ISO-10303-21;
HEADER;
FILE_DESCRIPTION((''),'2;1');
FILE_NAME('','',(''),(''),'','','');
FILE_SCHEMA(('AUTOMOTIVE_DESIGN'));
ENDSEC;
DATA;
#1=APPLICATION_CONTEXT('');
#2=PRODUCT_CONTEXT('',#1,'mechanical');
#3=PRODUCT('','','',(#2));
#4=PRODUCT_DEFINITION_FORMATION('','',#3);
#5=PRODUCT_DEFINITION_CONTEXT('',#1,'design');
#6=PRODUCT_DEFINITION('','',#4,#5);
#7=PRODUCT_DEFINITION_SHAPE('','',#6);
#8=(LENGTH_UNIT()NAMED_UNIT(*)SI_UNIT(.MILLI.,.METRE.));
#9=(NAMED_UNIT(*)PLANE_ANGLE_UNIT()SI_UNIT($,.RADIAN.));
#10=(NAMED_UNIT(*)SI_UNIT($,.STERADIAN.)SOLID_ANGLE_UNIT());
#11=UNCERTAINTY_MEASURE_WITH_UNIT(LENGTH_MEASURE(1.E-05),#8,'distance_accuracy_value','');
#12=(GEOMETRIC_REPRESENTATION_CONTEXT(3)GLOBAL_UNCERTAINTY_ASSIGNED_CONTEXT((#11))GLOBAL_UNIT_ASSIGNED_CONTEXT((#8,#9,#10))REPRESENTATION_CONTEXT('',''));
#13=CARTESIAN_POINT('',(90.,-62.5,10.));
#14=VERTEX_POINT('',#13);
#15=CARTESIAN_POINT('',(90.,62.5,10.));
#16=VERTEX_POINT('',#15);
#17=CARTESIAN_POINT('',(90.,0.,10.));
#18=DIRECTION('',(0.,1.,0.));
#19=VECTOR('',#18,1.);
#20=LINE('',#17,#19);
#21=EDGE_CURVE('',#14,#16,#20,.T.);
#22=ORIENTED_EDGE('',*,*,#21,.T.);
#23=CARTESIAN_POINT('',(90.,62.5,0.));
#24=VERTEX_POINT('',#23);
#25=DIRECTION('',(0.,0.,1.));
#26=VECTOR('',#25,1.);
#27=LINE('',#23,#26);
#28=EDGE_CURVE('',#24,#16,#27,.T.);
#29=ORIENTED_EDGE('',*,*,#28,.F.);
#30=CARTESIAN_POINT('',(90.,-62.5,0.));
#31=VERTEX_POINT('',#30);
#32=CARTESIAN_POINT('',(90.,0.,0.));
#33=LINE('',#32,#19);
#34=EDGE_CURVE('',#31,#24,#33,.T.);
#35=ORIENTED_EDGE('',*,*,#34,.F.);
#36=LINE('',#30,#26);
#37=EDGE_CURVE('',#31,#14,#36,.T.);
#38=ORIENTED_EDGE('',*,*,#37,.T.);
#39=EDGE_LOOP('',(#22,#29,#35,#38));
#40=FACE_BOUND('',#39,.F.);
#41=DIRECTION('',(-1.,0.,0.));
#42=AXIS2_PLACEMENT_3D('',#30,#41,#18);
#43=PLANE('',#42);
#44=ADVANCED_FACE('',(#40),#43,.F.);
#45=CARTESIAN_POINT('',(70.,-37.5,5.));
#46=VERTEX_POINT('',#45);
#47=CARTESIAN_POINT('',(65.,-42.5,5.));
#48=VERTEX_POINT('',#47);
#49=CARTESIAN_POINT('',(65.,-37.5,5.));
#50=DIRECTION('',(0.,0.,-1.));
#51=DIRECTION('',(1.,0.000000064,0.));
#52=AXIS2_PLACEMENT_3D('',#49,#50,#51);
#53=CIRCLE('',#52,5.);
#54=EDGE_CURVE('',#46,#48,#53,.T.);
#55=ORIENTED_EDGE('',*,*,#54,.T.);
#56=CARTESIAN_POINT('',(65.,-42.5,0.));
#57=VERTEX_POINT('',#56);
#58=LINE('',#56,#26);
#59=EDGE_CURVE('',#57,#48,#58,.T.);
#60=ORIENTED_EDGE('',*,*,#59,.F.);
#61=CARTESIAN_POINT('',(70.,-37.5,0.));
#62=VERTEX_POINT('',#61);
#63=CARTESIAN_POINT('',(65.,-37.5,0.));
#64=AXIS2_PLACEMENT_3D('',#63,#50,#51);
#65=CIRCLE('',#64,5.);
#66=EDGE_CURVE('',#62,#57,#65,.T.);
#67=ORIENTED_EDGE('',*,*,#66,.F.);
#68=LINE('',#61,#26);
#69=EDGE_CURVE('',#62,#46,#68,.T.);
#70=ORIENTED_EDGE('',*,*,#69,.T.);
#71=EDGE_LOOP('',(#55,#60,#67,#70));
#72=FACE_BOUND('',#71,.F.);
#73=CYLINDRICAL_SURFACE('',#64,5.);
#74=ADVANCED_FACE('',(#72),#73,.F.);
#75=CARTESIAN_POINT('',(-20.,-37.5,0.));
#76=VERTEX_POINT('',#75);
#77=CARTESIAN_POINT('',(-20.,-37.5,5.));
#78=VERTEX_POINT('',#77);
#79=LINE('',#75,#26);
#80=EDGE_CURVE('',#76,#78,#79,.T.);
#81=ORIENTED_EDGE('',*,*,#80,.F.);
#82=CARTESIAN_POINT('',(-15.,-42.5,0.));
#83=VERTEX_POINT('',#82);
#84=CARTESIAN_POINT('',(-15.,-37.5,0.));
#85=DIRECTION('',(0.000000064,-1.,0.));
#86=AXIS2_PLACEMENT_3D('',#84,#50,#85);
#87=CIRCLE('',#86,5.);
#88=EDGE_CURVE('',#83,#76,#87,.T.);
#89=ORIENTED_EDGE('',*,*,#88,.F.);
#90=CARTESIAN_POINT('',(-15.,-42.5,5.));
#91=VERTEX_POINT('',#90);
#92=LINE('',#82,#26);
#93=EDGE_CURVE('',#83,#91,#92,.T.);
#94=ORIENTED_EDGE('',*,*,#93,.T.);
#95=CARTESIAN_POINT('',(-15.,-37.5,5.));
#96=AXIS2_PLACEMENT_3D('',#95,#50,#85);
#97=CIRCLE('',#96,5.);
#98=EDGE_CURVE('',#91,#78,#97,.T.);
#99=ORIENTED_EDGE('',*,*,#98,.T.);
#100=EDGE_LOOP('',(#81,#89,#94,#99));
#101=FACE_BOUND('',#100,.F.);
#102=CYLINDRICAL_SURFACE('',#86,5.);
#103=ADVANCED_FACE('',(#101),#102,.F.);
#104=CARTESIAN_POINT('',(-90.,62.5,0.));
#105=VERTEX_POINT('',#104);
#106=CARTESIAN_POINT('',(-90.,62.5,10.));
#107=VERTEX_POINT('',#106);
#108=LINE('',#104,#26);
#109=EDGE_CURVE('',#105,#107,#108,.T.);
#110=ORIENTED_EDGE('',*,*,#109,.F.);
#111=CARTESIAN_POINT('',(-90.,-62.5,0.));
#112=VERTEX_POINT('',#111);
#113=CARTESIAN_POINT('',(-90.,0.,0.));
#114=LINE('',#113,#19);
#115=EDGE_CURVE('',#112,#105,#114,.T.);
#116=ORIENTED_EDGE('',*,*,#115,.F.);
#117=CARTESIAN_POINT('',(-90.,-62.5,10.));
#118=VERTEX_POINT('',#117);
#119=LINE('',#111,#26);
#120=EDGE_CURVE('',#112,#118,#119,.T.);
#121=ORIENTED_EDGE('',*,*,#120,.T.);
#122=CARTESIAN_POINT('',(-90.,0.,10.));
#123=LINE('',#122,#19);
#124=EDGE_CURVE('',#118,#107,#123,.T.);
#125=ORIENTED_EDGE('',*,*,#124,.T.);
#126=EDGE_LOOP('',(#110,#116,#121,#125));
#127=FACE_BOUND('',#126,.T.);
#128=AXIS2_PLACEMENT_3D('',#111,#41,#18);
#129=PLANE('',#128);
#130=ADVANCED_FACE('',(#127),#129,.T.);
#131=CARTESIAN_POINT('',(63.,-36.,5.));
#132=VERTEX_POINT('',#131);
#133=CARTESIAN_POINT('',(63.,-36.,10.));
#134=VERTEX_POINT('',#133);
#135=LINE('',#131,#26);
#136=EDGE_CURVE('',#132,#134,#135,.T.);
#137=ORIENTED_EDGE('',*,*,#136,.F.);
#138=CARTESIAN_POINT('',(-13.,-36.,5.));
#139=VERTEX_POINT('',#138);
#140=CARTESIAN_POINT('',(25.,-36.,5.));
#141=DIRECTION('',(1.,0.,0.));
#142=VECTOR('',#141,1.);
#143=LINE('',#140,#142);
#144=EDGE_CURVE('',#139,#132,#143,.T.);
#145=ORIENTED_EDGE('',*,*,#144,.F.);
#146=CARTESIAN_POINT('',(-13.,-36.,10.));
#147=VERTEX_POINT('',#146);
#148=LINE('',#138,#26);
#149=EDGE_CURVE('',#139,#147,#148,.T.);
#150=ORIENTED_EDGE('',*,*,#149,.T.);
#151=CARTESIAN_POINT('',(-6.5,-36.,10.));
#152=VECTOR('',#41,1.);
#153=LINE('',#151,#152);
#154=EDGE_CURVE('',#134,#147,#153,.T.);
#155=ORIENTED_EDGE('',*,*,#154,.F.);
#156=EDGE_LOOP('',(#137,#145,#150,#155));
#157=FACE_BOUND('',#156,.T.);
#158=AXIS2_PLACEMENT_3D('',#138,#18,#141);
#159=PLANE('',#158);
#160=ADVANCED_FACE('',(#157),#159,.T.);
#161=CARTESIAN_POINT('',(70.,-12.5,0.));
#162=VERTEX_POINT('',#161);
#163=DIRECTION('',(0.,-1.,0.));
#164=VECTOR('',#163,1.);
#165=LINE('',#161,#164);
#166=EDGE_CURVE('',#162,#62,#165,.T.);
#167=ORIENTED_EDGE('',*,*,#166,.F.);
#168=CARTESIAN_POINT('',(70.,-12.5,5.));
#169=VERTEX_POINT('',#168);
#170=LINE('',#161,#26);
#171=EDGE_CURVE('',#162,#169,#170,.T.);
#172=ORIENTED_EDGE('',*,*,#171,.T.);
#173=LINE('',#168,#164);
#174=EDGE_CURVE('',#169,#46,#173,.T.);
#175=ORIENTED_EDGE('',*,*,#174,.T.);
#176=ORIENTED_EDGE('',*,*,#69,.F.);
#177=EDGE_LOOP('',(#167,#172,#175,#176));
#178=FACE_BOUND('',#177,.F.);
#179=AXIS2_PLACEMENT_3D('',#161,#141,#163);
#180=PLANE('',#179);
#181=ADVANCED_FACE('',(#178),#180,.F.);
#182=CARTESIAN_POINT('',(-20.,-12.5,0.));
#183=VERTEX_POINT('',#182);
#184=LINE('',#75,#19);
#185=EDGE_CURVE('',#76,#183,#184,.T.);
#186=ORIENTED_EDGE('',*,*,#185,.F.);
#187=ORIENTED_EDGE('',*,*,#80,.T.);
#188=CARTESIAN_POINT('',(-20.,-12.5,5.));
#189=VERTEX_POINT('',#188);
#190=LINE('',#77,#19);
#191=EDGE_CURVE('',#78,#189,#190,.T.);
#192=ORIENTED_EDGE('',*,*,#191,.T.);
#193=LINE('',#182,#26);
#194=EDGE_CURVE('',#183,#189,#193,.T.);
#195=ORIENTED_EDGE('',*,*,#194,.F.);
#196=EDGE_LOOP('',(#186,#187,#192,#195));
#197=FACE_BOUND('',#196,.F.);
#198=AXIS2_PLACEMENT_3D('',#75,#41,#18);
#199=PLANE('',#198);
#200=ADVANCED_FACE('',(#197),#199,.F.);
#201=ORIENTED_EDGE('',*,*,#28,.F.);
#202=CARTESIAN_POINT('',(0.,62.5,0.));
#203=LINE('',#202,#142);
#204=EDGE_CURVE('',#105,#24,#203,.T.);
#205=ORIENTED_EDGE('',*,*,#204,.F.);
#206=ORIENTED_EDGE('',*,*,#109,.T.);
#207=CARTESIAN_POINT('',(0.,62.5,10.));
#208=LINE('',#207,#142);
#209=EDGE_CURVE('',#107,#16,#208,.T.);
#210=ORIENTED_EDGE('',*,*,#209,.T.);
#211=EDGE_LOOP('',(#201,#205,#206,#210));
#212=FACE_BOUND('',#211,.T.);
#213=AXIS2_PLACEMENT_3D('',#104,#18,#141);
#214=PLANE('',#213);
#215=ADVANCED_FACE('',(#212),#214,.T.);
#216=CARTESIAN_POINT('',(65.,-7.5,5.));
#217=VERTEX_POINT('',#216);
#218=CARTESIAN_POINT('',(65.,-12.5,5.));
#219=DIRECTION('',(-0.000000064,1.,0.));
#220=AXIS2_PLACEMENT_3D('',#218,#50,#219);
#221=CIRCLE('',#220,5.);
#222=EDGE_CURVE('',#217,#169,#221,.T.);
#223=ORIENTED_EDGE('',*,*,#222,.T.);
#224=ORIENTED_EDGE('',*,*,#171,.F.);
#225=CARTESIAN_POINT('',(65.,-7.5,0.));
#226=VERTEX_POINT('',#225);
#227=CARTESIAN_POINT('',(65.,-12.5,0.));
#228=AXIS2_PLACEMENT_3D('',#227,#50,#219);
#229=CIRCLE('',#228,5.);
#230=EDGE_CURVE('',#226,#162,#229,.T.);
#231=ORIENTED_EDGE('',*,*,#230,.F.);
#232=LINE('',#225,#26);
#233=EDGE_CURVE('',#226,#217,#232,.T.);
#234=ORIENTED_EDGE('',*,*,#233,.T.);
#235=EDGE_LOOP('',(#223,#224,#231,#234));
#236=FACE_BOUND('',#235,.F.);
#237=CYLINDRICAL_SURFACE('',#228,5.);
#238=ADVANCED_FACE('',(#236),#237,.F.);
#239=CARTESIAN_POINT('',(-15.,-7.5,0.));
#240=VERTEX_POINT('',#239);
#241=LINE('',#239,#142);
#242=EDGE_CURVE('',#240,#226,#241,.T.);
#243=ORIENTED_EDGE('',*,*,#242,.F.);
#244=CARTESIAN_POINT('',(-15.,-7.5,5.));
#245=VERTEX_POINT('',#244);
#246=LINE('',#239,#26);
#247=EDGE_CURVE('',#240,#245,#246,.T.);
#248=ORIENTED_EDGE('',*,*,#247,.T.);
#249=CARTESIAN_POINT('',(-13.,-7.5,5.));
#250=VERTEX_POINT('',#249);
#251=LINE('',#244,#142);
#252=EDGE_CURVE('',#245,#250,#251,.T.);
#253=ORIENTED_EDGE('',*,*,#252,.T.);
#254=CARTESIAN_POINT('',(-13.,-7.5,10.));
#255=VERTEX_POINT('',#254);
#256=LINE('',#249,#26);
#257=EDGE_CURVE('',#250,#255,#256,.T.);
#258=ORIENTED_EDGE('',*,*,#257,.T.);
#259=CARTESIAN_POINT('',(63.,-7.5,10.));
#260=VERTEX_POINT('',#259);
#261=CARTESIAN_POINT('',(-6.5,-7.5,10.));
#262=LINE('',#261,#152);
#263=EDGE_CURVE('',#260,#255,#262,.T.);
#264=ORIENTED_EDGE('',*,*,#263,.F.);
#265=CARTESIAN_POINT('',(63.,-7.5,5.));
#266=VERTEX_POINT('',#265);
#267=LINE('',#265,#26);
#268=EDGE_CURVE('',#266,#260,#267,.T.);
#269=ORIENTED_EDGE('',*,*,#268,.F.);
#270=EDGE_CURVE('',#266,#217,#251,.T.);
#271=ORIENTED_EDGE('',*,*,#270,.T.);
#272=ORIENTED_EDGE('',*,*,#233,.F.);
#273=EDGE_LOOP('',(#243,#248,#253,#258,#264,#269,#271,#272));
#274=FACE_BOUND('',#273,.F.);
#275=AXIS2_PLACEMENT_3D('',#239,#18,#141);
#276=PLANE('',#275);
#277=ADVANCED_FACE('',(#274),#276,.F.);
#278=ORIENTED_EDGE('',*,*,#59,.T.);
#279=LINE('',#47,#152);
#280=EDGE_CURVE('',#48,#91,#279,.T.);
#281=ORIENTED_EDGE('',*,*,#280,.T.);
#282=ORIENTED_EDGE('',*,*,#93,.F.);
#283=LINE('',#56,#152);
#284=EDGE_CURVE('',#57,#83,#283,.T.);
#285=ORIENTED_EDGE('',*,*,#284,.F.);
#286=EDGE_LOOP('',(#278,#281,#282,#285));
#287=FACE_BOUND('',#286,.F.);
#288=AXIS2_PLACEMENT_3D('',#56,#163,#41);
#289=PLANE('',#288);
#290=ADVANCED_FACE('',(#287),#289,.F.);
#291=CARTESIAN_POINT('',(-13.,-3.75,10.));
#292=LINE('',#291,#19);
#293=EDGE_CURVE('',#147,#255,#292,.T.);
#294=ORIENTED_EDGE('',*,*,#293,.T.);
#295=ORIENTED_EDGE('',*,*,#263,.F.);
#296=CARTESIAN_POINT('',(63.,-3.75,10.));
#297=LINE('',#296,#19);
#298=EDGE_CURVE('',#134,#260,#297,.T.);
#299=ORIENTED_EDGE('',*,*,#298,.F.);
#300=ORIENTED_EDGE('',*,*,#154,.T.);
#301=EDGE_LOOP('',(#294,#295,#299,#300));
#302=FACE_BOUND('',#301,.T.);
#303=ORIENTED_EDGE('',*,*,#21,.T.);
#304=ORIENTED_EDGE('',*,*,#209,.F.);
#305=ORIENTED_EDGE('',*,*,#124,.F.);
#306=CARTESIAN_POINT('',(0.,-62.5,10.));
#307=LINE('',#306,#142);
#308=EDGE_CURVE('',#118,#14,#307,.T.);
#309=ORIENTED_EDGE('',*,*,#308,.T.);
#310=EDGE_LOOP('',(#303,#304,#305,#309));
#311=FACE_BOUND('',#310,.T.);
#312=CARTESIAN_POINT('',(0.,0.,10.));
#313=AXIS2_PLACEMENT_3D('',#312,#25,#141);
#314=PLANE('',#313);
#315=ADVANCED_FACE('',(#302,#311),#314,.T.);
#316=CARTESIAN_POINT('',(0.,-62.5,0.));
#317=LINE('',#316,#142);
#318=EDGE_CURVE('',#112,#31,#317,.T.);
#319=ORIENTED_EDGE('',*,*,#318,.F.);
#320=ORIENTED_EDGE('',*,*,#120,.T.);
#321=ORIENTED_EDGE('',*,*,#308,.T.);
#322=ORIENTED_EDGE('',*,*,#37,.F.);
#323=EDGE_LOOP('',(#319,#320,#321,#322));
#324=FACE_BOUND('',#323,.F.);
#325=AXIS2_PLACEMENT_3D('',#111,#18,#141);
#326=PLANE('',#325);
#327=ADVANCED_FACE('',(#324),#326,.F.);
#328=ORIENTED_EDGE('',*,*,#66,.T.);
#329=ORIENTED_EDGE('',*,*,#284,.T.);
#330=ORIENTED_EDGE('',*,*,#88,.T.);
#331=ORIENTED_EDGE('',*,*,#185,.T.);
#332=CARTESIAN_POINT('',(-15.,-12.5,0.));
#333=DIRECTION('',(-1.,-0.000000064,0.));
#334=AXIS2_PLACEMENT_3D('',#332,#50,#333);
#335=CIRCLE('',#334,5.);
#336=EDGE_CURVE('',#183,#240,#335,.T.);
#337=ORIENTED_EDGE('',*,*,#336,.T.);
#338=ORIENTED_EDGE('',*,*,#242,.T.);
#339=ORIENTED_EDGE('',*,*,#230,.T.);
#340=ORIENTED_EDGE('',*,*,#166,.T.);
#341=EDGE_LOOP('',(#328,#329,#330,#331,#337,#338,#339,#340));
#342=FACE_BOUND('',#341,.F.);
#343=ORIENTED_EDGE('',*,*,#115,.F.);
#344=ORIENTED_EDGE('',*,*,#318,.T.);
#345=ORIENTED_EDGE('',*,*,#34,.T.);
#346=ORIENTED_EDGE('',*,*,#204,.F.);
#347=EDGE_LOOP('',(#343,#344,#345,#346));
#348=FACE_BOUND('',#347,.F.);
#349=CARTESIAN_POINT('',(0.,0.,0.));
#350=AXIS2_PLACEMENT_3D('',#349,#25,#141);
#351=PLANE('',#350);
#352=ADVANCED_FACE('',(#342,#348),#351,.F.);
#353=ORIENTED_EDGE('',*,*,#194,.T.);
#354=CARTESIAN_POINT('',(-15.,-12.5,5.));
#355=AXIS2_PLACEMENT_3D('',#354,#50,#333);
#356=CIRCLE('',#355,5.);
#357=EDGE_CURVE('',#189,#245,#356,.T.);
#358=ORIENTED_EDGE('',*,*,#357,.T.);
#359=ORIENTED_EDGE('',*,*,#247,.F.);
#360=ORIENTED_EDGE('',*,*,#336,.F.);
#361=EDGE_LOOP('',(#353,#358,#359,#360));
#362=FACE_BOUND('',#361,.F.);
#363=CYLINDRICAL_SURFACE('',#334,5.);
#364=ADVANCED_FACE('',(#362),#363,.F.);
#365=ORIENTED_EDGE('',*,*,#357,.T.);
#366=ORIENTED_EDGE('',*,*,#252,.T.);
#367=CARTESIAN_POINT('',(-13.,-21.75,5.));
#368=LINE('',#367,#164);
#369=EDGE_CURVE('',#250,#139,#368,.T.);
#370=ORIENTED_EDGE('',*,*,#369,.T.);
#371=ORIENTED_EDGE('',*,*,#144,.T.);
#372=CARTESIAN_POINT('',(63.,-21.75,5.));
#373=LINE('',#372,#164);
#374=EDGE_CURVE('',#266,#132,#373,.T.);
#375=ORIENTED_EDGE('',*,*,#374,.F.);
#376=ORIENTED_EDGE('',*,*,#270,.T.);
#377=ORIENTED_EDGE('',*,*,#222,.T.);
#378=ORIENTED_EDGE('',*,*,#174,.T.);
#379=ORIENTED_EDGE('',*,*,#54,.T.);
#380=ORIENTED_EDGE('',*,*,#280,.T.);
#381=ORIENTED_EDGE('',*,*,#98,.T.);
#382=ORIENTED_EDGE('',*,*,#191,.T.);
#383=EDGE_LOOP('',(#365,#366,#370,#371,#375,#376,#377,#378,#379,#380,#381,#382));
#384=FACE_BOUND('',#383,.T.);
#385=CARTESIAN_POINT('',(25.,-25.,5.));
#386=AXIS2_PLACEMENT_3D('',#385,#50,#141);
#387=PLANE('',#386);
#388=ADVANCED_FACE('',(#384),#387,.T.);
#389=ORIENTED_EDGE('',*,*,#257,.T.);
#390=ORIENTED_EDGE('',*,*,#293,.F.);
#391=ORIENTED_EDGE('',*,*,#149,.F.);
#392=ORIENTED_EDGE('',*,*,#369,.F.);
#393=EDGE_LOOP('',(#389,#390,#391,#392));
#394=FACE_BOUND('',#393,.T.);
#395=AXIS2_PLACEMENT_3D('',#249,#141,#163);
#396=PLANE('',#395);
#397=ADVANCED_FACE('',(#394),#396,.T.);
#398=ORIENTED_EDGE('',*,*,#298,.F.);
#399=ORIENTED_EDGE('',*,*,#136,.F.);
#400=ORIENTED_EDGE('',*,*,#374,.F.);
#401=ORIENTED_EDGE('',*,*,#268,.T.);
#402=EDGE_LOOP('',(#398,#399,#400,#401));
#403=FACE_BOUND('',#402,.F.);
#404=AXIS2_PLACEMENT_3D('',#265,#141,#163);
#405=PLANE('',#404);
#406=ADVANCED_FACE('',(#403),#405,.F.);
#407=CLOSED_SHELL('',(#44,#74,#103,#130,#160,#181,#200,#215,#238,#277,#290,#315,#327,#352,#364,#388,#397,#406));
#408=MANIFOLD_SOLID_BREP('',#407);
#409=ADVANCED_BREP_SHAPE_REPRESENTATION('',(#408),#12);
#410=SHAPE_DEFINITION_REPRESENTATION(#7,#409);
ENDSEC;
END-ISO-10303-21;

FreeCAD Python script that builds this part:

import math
import FreeCAD as App
import Part
import Sketcher

V = App.Vector
Q = App.Units.Quantity

doc = App.newDocument("Part")
body = doc.addObject("PartDesign::Body", "Body")

# Sketch on XY plane
sketch1 = body.newObject("Sketcher::SketchObject", "Sketch")
sketch1.AttachmentSupport = (doc.getObject("XY_Plane"), [""])
sketch1.MapMode = "FlatFace"
sketch1.addGeometry([
    Part.LineSegment(V(-90, 62.5, 0), V(-90, -62.5, 0)),
    Part.LineSegment(V(-90, -62.5, 0), V(90, -62.5, 0)),
    Part.LineSegment(V(90, -62.5, 0), V(90, 62.5, 0)),
    Part.LineSegment(V(90, 62.5, 0), V(-90, 62.5, 0)),
], False)
sketch1.addConstraint([
    Sketcher.Constraint("Coincident", 0, 2, 1, 1),
    Sketcher.Constraint("Coincident", 1, 2, 2, 1),
    Sketcher.Constraint("Coincident", 2, 2, 3, 1),
    Sketcher.Constraint("Coincident", 3, 2, 0, 1),
    Sketcher.Constraint("Vertical", 0),
    Sketcher.Constraint("Horizontal", 1),
    Sketcher.Constraint("Vertical", 2),
    Sketcher.Constraint("Horizontal", 3),
    Sketcher.Constraint("Symmetric", 0, 2, 2, 2, -1, 1),
    Sketcher.Constraint("DistanceX", 1, 1, 1, 2, Q("180 mm")),
    Sketcher.Constraint("DistanceY", 0, 2, 0, 1, Q("125 mm")),
])
pad1 = body.newObject("PartDesign::Pad", "Pad")
pad1.Profile = sketch1
pad1.Length = 10

# Sketch on XY plane
sketch2 = body.newObject("Sketcher::SketchObject", "Sketch001")
sketch2.AttachmentSupport = (doc.getObject("XY_Plane"), [""])
sketch2.MapMode = "FlatFace"
sketch2.addGeometry([
    Part.LineSegment(V(70, -12.5, 0), V(70, -37.5, 0)),  # 0
    Part.ArcOfCircle(Part.Circle(V(65, -37.5, 0), V(0, 0, 1), 5), math.radians(-90.000004), math.radians(0.000004)),  # 1
    Part.LineSegment(V(65, -42.5, 0), V(-15, -42.5, 0)),  # 2
    Part.ArcOfCircle(Part.Circle(V(-15, -37.5, 0), V(0, 0, 1), 5), math.radians(179.999996), math.radians(270.000004)),  # 3
    Part.LineSegment(V(-20, -37.5, 0), V(-20, -12.5, 0)),  # 4
    Part.ArcOfCircle(Part.Circle(V(-15, -12.5, 0), V(0, 0, 1), 5), math.radians(89.999996), math.radians(180.000004)),  # 5
    Part.LineSegment(V(-15, -7.5, 0), V(65, -7.5, 0)),  # 6
    Part.ArcOfCircle(Part.Circle(V(65, -12.5, 0), V(0, 0, 1), 5), math.radians(-0.000004), math.radians(90.000004)),  # 7
], False)
sketch2.addConstraint([
    Sketcher.Constraint("Tangent", 0, 2, 1, 2),
    Sketcher.Constraint("Tangent", 1, 1, 2, 1),
    Sketcher.Constraint("Tangent", 2, 2, 3, 2),
    Sketcher.Constraint("Tangent", 3, 1, 4, 1),
    Sketcher.Constraint("Tangent", 4, 2, 5, 2),
    Sketcher.Constraint("Tangent", 5, 1, 6, 1),
    Sketcher.Constraint("Tangent", 6, 2, 7, 2),
    Sketcher.Constraint("Tangent", 7, 1, 0, 1),
    Sketcher.Constraint("Vertical", 0),
    Sketcher.Constraint("Horizontal", 2),
    Sketcher.Constraint("Vertical", 4),
    Sketcher.Constraint("Horizontal", 6),
    Sketcher.Constraint("Equal", 1, 3),
    Sketcher.Constraint("Equal", 3, 5),
    Sketcher.Constraint("Equal", 5, 7),
    Sketcher.Constraint("Radius", 1, Q("5 mm")),
    Sketcher.Constraint("DistanceX", 2, 2, 2, 1, Q("80 mm")),
    Sketcher.Constraint("DistanceY", 0, 2, 0, 1, Q("25 mm")),
    Sketcher.Constraint("DistanceX", -1, 1, 1, 3, Q("65 mm")),
    Sketcher.Constraint("DistanceY", 1, 3, -1, 1, Q("37.5 mm")),
])
pocket1 = body.newObject("PartDesign::Pocket", "Pocket")
pocket1.Profile = sketch2
pocket1.Length = 5
pocket1.Reversed = True

# Sketch on XY plane
sketch3 = body.newObject("Sketcher::SketchObject", "Sketch002")
sketch3.AttachmentSupport = (doc.getObject("XY_Plane"), [""])
sketch3.MapMode = "FlatFace"
sketch3.AttachmentOffset = App.Placement(V(0, 0, 5), App.Rotation())
sketch3.addGeometry([
    Part.LineSegment(V(-13, -36, 0), V(-13, -7.5, 0)),
    Part.LineSegment(V(-13, -7.5, 0), V(63, -7.5, 0)),
    Part.LineSegment(V(63, -7.5, 0), V(63, -36, 0)),
    Part.LineSegment(V(63, -36, 0), V(-13, -36, 0)),
], False)
sketch3.addConstraint([
    Sketcher.Constraint("Coincident", 0, 2, 1, 1),
    Sketcher.Constraint("Coincident", 1, 2, 2, 1),
    Sketcher.Constraint("Coincident", 2, 2, 3, 1),
    Sketcher.Constraint("Coincident", 3, 2, 0, 1),
    Sketcher.Constraint("Vertical", 0),
    Sketcher.Constraint("Horizontal", 1),
    Sketcher.Constraint("Vertical", 2),
    Sketcher.Constraint("Horizontal", 3),
    Sketcher.Constraint("DistanceX", 1, 1, 1, 2, Q("76 mm")),
    Sketcher.Constraint("DistanceY", 0, 1, 0, 2, Q("28.5 mm")),
    Sketcher.Constraint("DistanceX", 0, 2, -1, 1, Q("13 mm")),
    Sketcher.Constraint("DistanceY", 2, 2, -1, 1, Q("36 mm")),
])
pocket2 = body.newObject("PartDesign::Pocket", "Pocket001")
pocket2.Profile = sketch3
pocket2.Type = "ThroughAll"
pocket2.Reversed = True

doc.recompute()
